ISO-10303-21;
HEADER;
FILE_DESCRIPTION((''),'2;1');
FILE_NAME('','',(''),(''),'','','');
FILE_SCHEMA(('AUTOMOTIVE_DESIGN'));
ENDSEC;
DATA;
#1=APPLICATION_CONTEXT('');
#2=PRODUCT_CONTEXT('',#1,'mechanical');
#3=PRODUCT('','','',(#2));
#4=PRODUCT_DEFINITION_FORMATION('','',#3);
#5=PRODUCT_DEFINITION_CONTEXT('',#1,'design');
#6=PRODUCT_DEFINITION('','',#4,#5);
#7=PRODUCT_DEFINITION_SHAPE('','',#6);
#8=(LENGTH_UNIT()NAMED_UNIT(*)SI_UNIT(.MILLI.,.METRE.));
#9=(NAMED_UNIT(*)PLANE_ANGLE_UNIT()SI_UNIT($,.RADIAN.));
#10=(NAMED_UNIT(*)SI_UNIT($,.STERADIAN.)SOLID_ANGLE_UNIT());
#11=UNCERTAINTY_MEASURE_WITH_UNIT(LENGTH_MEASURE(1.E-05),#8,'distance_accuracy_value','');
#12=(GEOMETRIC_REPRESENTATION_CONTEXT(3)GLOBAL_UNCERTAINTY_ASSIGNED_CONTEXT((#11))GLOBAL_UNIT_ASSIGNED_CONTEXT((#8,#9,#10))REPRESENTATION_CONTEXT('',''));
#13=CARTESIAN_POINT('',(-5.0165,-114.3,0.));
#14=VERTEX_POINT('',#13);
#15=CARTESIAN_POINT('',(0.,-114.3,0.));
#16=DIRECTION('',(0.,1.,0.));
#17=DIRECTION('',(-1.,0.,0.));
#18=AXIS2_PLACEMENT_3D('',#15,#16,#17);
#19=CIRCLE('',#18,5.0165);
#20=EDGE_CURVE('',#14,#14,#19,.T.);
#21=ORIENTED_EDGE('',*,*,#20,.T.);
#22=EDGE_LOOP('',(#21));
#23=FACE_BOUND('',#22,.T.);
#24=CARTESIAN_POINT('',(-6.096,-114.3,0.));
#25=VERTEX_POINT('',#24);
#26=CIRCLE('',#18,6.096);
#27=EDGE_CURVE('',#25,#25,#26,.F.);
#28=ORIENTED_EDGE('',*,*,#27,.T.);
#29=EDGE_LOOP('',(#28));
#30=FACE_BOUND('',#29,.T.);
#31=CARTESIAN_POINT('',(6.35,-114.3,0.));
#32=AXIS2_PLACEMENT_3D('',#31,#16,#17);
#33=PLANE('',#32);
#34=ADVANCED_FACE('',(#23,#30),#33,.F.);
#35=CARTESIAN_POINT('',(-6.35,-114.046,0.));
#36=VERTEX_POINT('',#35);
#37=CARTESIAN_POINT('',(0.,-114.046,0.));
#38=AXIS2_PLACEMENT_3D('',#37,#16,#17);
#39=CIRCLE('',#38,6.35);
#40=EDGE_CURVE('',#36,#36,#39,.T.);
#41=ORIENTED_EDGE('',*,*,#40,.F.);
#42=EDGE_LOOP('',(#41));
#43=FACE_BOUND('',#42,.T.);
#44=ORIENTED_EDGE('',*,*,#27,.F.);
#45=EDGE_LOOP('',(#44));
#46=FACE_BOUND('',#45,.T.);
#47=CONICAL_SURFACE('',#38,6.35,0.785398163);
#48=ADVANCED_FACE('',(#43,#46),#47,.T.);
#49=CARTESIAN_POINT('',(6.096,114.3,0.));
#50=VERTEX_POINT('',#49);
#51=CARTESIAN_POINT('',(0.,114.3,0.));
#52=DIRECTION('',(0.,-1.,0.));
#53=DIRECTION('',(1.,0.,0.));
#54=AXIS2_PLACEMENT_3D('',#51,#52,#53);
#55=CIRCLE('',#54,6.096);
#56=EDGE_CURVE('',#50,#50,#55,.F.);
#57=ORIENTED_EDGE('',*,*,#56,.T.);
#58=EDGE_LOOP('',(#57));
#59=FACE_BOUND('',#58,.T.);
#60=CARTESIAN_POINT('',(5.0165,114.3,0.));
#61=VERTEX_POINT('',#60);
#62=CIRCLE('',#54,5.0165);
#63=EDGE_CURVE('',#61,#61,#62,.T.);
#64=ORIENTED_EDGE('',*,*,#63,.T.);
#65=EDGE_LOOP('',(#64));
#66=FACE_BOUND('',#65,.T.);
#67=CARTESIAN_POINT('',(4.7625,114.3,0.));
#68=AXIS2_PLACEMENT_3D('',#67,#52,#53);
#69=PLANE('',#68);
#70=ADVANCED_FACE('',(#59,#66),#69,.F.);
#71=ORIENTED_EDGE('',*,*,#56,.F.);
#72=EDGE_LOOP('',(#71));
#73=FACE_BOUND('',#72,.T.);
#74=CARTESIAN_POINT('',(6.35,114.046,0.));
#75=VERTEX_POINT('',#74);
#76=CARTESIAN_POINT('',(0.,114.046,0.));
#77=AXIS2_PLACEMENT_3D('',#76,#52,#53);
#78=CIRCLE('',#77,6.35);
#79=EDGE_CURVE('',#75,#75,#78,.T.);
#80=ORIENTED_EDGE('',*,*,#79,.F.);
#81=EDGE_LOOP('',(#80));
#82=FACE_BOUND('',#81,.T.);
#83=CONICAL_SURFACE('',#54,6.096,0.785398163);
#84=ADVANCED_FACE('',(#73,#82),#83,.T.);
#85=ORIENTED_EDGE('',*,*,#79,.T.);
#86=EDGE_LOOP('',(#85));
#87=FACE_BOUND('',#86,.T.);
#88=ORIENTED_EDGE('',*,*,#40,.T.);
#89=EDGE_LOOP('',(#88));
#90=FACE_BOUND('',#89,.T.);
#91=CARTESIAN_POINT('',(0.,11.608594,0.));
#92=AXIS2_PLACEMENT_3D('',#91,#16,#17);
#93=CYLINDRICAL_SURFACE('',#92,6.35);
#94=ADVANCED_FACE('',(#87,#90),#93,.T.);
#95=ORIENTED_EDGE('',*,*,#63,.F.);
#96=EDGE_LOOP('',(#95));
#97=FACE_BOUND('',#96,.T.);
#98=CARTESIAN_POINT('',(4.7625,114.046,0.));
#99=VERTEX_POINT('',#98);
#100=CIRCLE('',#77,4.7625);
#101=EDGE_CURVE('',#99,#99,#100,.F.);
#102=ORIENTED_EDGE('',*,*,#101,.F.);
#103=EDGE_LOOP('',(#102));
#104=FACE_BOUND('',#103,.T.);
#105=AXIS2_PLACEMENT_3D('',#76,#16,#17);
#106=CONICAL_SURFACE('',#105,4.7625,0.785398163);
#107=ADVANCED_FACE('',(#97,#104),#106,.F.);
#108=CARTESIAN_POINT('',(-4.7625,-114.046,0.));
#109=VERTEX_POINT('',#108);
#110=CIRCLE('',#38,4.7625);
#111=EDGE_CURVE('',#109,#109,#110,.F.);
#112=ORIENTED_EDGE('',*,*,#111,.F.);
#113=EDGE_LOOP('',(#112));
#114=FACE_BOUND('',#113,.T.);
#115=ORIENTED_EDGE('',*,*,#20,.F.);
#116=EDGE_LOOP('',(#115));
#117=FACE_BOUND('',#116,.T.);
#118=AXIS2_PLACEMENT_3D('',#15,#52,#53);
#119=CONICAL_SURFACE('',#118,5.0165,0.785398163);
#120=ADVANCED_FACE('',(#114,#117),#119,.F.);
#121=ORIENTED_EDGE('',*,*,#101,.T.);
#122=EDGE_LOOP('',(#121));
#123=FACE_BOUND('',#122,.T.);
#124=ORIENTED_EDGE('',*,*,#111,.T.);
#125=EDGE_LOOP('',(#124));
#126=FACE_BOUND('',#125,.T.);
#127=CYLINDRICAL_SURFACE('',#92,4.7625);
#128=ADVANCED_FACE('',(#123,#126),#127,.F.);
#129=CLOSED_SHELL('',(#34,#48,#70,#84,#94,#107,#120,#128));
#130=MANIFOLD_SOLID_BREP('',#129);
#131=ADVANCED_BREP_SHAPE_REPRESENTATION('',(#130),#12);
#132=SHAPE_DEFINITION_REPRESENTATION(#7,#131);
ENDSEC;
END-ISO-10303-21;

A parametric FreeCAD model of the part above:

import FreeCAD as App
import Part
import Sketcher
Q = App.Units.Quantity


def edges_at(feature, points):
    """Names of the edges that pass closest to the given points."""
    edges = feature.Shape.Edges
    near = lambda p: min(range(len(edges)), key=lambda i: edges[i].distToShape(Part.Vertex(*p))[0])
    return sorted({f"Edge{near(p) + 1}" for p in points})


def add_polygon(sketch, points):
    """Adds a closed chain of lines whose ends are joined by coincident constraints."""
    first, n = sketch.GeometryCount, len(points)
    for a, b in zip(points, points[1:] + points[:1]):
        sketch.addGeometry(Part.LineSegment(App.Vector(*a, 0), App.Vector(*b, 0)), False)
    for i in range(n):
        sketch.addConstraint(Sketcher.Constraint("Coincident", first + i, 2, first + (i + 1) % n, 1))

doc = App.newDocument("Part")
body = doc.addObject("PartDesign::Body", "Body")

# Sketch on XY plane
sketch1 = body.newObject("Sketcher::SketchObject", "Sketch")
sketch1.AttachmentSupport = (doc.getObject("XY_Plane"), [""])
sketch1.MapMode = "FlatFace"
add_polygon(sketch1, [(4.8, 114.3), (4.8, -114.3), (6.3, -114.3), (6.3, 114.3)])  # lines 0-3
sketch1.addConstraint([
    Sketcher.Constraint("Vertical", 0),
    Sketcher.Constraint("Horizontal", 1),
    Sketcher.Constraint("Vertical", 2),
    Sketcher.Constraint("Horizontal", 3),
    Sketcher.Constraint("DistanceY", 0, 2, 0, 1, Q("9 in")),
    Sketcher.Constraint("DistanceY", 0, 2, -1, 1, Q("4.5 in")),
    Sketcher.Constraint("DistanceX", 1, 1, 1, 2, Q("0.0625 in")),
    Sketcher.Constraint("DistanceX", -1, 1, 1, 2, Q("0.25 in")),
])
revolution = body.newObject("PartDesign::Revolution", "Revolution")
revolution.Profile = sketch1
revolution.ReferenceAxis = (sketch1, ["V_Axis"])
revolution.Angle = 360
doc.recompute()

chamfer = body.newObject("PartDesign::Chamfer", "Chamfer")
chamfer.Base = (revolution, edges_at(revolution, [
    (-4.763, -114.3, 0),
    (-6.35, -114.3, 0),
    (-6.35, 114.3, 0),
    (-4.763, 114.3, 0),
]))
chamfer.Size = Q("0.01 in")

doc.recompute()
